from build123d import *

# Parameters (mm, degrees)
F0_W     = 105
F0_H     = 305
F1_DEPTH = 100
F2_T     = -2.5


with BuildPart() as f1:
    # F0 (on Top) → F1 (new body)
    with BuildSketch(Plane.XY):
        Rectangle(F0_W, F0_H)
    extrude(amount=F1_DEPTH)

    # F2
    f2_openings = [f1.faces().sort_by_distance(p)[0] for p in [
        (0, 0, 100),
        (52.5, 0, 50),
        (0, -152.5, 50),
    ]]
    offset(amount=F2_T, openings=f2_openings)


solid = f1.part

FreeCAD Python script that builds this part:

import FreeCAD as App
import Part
import Sketcher


def faces_at(feature, points):
    """Names of the faces that lie closest to the given points."""
    faces = feature.Shape.Faces
    near = lambda p: min(range(len(faces)), key=lambda i: faces[i].distToShape(Part.Vertex(*p))[0])
    return sorted({f"Face{near(p) + 1}" for p in points})


def add_polygon(sketch, points):
    """Adds a closed chain of lines whose ends are joined by coincident constraints."""
    first, n = sketch.GeometryCount, len(points)
    for a, b in zip(points, points[1:] + points[:1]):
        sketch.addGeometry(Part.LineSegment(App.Vector(*a, 0), App.Vector(*b, 0)), False)
    for i in range(n):
        sketch.addConstraint(Sketcher.Constraint("Coincident", first + i, 2, first + (i + 1) % n, 1))

doc = App.newDocument("Part")
body = doc.addObject("PartDesign::Body", "Body")

# Sketch on XY plane
sketch1 = doc.addObject("Sketcher::SketchObject", "Sketch")
body.addObject(sketch1)
sketch1.AttachmentSupport = (doc.XY_Plane, [""])
sketch1.MapMode = "FlatFace"
add_polygon(sketch1, [(-52, 152), (-52, -152), (52, -152), (52, 152)])  # lines 0-3
sketch1.addConstraint(Sketcher.Constraint("Vertical", 0))
sketch1.addConstraint(Sketcher.Constraint("Horizontal", 1))
sketch1.addConstraint(Sketcher.Constraint("Vertical", 2))
sketch1.addConstraint(Sketcher.Constraint("Horizontal", 3))
sketch1.addConstraint(Sketcher.Constraint("Symmetric", 0, 2, 2, 2, -1, 1))
sketch1.addConstraint(Sketcher.Constraint("DistanceX", 1, 1, 1, 2, 105.0))
sketch1.addConstraint(Sketcher.Constraint("DistanceY", 0, 2, 0, 1, 305.0))
pad1 = doc.addObject("PartDesign::Pad", "Pad")
body.addObject(pad1)
pad1.Profile = sketch1
pad1.Length = 100
doc.recompute()

thickness = doc.addObject("PartDesign::Thickness", "Thickness")
body.addObject(thickness)
thickness.Base = (pad1, faces_at(pad1, [(0, 0, 100), (52.5, 0, 50), (0, -152.5, 50)]))
thickness.Value = 2.5
thickness.Reversed = True
thickness.Join = "Arc"

doc.recompute()
